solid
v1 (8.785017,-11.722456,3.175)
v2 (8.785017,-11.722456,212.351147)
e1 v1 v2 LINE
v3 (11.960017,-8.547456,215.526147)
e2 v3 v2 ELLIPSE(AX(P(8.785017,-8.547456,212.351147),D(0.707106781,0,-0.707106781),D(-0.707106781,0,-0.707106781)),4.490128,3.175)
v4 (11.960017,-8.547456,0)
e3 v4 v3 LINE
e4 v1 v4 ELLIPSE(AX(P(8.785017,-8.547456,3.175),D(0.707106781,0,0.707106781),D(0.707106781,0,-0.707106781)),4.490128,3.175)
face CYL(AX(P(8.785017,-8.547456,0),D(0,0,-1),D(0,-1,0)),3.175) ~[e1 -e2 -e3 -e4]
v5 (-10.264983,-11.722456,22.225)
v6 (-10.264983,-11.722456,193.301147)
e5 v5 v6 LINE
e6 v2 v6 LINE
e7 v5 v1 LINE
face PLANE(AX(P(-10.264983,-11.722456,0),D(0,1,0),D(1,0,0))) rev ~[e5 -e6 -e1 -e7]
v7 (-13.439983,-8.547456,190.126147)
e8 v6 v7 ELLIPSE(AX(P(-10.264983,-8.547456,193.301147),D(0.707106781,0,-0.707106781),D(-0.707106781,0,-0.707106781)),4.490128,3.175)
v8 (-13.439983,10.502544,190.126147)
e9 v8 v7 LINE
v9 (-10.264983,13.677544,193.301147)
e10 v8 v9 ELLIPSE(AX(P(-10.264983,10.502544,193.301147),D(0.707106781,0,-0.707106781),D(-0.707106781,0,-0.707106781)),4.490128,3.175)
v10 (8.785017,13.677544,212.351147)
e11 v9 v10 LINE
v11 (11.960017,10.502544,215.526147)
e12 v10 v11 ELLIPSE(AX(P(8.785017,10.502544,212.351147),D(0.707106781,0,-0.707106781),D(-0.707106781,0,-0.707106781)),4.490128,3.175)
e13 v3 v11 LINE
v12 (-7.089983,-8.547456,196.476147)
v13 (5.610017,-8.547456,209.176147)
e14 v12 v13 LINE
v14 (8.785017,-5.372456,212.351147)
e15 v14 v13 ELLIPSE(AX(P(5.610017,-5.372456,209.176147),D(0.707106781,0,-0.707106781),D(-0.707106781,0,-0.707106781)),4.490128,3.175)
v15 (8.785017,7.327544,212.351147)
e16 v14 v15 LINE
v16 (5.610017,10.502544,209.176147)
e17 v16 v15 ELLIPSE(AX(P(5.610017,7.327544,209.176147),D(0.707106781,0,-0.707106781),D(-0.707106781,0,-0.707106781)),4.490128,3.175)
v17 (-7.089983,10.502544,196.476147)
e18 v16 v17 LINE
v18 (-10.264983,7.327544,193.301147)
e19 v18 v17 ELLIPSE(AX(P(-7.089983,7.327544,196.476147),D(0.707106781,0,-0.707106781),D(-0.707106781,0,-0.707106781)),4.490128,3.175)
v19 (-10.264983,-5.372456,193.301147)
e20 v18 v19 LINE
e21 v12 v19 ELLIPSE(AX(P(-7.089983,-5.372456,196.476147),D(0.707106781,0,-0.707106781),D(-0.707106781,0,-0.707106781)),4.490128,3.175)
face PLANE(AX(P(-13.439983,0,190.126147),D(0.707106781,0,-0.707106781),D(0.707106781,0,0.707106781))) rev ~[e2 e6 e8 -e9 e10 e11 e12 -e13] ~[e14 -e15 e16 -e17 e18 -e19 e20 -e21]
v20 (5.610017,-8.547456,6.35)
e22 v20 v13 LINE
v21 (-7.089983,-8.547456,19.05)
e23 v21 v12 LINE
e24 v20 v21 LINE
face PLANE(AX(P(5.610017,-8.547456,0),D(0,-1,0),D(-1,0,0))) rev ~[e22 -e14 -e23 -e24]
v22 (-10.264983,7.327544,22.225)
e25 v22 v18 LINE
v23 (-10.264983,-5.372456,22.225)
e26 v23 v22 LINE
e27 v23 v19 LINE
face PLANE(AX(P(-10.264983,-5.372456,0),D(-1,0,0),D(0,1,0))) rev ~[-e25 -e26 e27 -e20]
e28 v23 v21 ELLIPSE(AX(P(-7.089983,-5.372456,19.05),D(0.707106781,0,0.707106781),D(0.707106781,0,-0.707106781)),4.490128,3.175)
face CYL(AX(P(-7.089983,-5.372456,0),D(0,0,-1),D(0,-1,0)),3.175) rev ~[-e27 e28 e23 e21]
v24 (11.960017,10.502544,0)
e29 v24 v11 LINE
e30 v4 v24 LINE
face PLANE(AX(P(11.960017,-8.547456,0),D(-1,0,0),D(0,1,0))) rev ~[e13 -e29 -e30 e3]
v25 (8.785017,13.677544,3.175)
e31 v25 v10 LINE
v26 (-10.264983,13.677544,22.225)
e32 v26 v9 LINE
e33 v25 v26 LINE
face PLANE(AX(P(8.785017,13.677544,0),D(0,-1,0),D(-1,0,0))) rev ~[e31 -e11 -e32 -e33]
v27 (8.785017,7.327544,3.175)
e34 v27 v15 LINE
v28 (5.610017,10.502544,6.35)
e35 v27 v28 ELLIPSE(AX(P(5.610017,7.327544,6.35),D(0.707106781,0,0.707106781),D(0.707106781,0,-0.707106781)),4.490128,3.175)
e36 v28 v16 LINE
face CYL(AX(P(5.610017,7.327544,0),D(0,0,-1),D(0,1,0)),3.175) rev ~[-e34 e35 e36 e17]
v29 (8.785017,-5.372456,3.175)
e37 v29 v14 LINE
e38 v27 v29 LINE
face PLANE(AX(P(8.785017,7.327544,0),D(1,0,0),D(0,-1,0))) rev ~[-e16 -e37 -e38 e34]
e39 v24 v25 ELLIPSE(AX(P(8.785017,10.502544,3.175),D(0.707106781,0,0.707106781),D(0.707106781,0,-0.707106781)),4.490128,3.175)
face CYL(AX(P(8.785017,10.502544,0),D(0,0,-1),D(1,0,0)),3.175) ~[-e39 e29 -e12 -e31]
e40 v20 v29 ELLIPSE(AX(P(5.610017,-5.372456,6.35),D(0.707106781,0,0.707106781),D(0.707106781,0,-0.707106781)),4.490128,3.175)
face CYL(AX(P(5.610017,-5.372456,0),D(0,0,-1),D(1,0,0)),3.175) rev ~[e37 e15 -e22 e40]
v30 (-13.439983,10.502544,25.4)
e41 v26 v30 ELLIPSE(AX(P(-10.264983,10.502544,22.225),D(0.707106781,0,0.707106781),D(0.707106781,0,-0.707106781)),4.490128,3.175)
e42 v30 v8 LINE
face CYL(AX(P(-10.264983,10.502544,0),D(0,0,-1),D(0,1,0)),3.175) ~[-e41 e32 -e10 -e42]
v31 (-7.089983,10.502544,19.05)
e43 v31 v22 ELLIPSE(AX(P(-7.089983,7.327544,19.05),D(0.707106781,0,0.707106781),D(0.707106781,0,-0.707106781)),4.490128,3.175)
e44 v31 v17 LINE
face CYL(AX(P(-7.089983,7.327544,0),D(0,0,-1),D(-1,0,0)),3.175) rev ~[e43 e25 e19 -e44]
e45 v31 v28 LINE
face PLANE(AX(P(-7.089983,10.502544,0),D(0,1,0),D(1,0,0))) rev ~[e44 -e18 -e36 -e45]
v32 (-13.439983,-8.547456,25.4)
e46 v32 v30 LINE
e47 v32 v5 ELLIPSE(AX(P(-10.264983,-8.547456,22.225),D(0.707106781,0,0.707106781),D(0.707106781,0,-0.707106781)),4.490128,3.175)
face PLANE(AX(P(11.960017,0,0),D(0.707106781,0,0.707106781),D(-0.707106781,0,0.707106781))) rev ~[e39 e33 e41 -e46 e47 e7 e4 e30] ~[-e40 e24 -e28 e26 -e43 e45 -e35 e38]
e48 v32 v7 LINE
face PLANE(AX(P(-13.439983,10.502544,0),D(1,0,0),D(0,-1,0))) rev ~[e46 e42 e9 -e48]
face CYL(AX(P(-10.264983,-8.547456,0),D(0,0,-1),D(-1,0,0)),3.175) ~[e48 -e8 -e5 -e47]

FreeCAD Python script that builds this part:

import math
import FreeCAD as App
import Part
import Sketcher

V = App.Vector
Q = App.Units.Quantity

doc = App.newDocument("Part")
body = doc.addObject("PartDesign::Body", "Body")

# Sketch on XY plane
sketch1 = body.newObject("Sketcher::SketchObject", "Sketch")
sketch1.AttachmentSupport = (doc.getObject("XY_Plane"), [""])
sketch1.MapMode = "FlatFace"
sketch1.addGeometry(Part.LineSegment(V(-10.3, -11.7, 0), V(8.8, -11.7, 0)), False)
sketch1.addGeometry(Part.ArcOfCircle(Part.Circle(V(8.8, -8.5, 0), V(0, 0, 1), 3.2), math.radians(-90), math.radians(0)), False)
sketch1.addGeometry(Part.LineSegment(V(12, -8.5, 0), V(12, 10.5, 0)), False)
sketch1.addGeometry(Part.ArcOfCircle(Part.Circle(V(8.8, 10.5, 0), V(0, 0, 1), 3.2), math.radians(0), math.radians(90)), False)
sketch1.addGeometry(Part.LineSegment(V(8.8, 13.7, 0), V(-10.3, 13.7, 0)), False)
sketch1.addGeometry(Part.ArcOfCircle(Part.Circle(V(-10.3, 10.5, 0), V(0, 0, 1), 3.2), math.radians(90), math.radians(180)), False)
sketch1.addGeometry(Part.LineSegment(V(-13.4, 10.5, 0), V(-13.4, -8.5, 0)), False)
sketch1.addGeometry(Part.ArcOfCircle(Part.Circle(V(-10.3, -8.5, 0), V(0, 0, 1), 3.2), math.radians(180), math.radians(270)), False)
sketch1.addGeometry(Part.LineSegment(V(8.8, 7.3, 0), V(8.8, -5.4, 0)), False)
sketch1.addGeometry(Part.ArcOfCircle(Part.Circle(V(5.6, -5.4, 0), V(0, 0, 1), 3.2), math.radians(-90), math.radians(0)), False)
sketch1.addGeometry(Part.LineSegment(V(5.6, -8.5, 0), V(-7.1, -8.5, 0)), False)
sketch1.addGeometry(Part.ArcOfCircle(Part.Circle(V(-7.1, -5.4, 0), V(0, 0, 1), 3.2), math.radians(180), math.radians(270)), False)
sketch1.addGeometry(Part.LineSegment(V(-10.3, -5.4, 0), V(-10.3, 7.3, 0)), False)
sketch1.addGeometry(Part.ArcOfCircle(Part.Circle(V(-7.1, 7.3, 0), V(0, 0, 1), 3.2), math.radians(90), math.radians(180)), False)
sketch1.addGeometry(Part.LineSegment(V(-7.1, 10.5, 0), V(5.6, 10.5, 0)), False)
sketch1.addGeometry(Part.ArcOfCircle(Part.Circle(V(5.6, 7.3, 0), V(0, 0, 1), 3.2), math.radians(0), math.radians(90)), False)
sketch1.addConstraint(Sketcher.Constraint("Tangent", 0, 2, 1, 1))
sketch1.addConstraint(Sketcher.Constraint("Tangent", 1, 2, 2, 1))
sketch1.addConstraint(Sketcher.Constraint("Tangent", 2, 2, 3, 1))
sketch1.addConstraint(Sketcher.Constraint("Tangent", 3, 2, 4, 1))
sketch1.addConstraint(Sketcher.Constraint("Tangent", 4, 2, 5, 1))
sketch1.addConstraint(Sketcher.Constraint("Tangent", 5, 2, 6, 1))
sketch1.addConstraint(Sketcher.Constraint("Tangent", 6, 2, 7, 1))
sketch1.addConstraint(Sketcher.Constraint("Tangent", 7, 2, 0, 1))
sketch1.addConstraint(Sketcher.Constraint("Tangent", 8, 2, 9, 2))
sketch1.addConstraint(Sketcher.Constraint("Tangent", 9, 1, 10, 1))
sketch1.addConstraint(Sketcher.Constraint("Tangent", 10, 2, 11, 2))
sketch1.addConstraint(Sketcher.Constraint("Tangent", 11, 1, 12, 1))
sketch1.addConstraint(Sketcher.Constraint("Tangent", 12, 2, 13, 2))
sketch1.addConstraint(Sketcher.Constraint("Tangent", 13, 1, 14, 1))
sketch1.addConstraint(Sketcher.Constraint("Tangent", 14, 2, 15, 2))
sketch1.addConstraint(Sketcher.Constraint("Tangent", 15, 1, 8, 1))
sketch1.addConstraint(Sketcher.Constraint("Horizontal", 0))
sketch1.addConstraint(Sketcher.Constraint("Vertical", 2))
sketch1.addConstraint(Sketcher.Constraint("Horizontal", 4))
sketch1.addConstraint(Sketcher.Constraint("Vertical", 6))
sketch1.addConstraint(Sketcher.Constraint("Vertical", 8))
sketch1.addConstraint(Sketcher.Constraint("Horizontal", 10))
sketch1.addConstraint(Sketcher.Constraint("Vertical", 12))
sketch1.addConstraint(Sketcher.Constraint("Horizontal", 14))
sketch1.addConstraint(Sketcher.Constraint("Equal", 1, 3))
sketch1.addConstraint(Sketcher.Constraint("Equal", 3, 5))
sketch1.addConstraint(Sketcher.Constraint("Equal", 5, 7))
sketch1.addConstraint(Sketcher.Constraint("Equal", 7, 9))
sketch1.addConstraint(Sketcher.Constraint("Equal", 9, 11))
sketch1.addConstraint(Sketcher.Constraint("Equal", 11, 13))
sketch1.addConstraint(Sketcher.Constraint("Equal", 13, 15))
sketch1.addConstraint(Sketcher.Constraint("Horizontal", 6, 2, 9, 1))
sketch1.addConstraint(Sketcher.Constraint("Horizontal", 5, 2, 13, 1))
sketch1.addConstraint(Sketcher.Constraint("Vertical", 3, 2, 8, 2))
sketch1.addConstraint(Sketcher.Constraint("Vertical", 7, 2, 11, 1))
sketch1.addConstraint(Sketcher.Constraint("Equal", 4, 2))
sketch1.addConstraint(Sketcher.Constraint("DistanceX", 10, 2, 10, 1, Q("0.5 in")))
sketch1.addConstraint(Sketcher.Constraint("Radius", 1, Q("0.125 in")))
sketch1.addConstraint(Sketcher.Constraint("DistanceX", -1, 1, 1, 3, Q("8.785017 mm")))
sketch1.addConstraint(Sketcher.Constraint("DistanceY", 1, 3, -1, 1, Q("8.547456 mm")))
pad1 = body.newObject("PartDesign::Pad", "Pad")
pad1.Profile = sketch1
pad1.Length = 215.526147

# Sketch on XZ plane
sketch2 = body.newObject("Sketcher::SketchObject", "Sketch001")
sketch2.AttachmentSupport = (doc.getObject("XZ_Plane"), [""])
sketch2.MapMode = "FlatFace"
sketch2.addGeometry(Part.LineSegment(V(-13, 0, 0), V(12, 0, 0)), False)
sketch2.addGeometry(Part.LineSegment(V(12, 0, 0), V(-13, 25, 0)), False)
sketch2.addGeometry(Part.LineSegment(V(-13, 25, 0), V(-13, 0, 0)), False)
sketch2.addConstraint(Sketcher.Constraint("Coincident", 0, 2, 1, 1))
sketch2.addConstraint(Sketcher.Constraint("Coincident", 1, 2, 2, 1))
sketch2.addConstraint(Sketcher.Constraint("Coincident", 2, 2, 0, 1))
sketch2.addConstraint(Sketcher.Constraint("Horizontal", 0))
sketch2.addConstraint(Sketcher.Constraint("Vertical", 2))
sketch2.addConstraint(Sketcher.Constraint("PointOnObject", 0, 2, -1))
sketch2.addConstraint(Sketcher.Constraint("Equal", 0, 2))
sketch2.addConstraint(Sketcher.Constraint("DistanceX", 0, 1, 0, 2, Q("1 in")))
sketch2.addConstraint(Sketcher.Constraint("DistanceX", -1, 1, 0, 2, Q("11.960017 mm")))
pocket1 = body.newObject("PartDesign::Pocket", "Pocket")
pocket1.Profile = sketch2
pocket1.Length = Q("2 in")
pocket1.Midplane = True

# Sketch on XZ plane
sketch3 = body.newObject("Sketcher::SketchObject", "Sketch002")
sketch3.AttachmentSupport = (doc.getObject("XZ_Plane"), [""])
sketch3.MapMode = "FlatFace"
sketch3.addGeometry(Part.LineSegment(V(-13, 216, 0), V(-13, 190, 0)), False)
sketch3.addGeometry(Part.LineSegment(V(-13, 190, 0), V(12, 216, 0)), False)
sketch3.addGeometry(Part.LineSegment(V(12, 216, 0), V(-13, 216, 0)), False)
sketch3.addConstraint(Sketcher.Constraint("Coincident", 0, 2, 1, 1))
sketch3.addConstraint(Sketcher.Constraint("Coincident", 1, 2, 2, 1))
sketch3.addConstraint(Sketcher.Constraint("Coincident", 2, 2, 0, 1))
sketch3.addConstraint(Sketcher.Constraint("Vertical", 0))
sketch3.addConstraint(Sketcher.Constraint("Horizontal", 2))
sketch3.addConstraint(Sketcher.Constraint("Equal", 2, 0))
sketch3.addConstraint(Sketcher.Constraint("DistanceX", 2, 2, 2, 1, Q("1 in")))
sketch3.addConstraint(Sketcher.Constraint("DistanceX", 0, 2, -1, 1, Q("13.439983 mm")))
sketch3.addConstraint(Sketcher.Constraint("DistanceY", -1, 1, 0, 2, Q("190.126147 mm")))
pocket2 = body.newObject("PartDesign::Pocket", "Pocket001")
pocket2.Profile = sketch3
pocket2.Length = Q("2 in")
pocket2.Midplane = True

doc.recompute()
